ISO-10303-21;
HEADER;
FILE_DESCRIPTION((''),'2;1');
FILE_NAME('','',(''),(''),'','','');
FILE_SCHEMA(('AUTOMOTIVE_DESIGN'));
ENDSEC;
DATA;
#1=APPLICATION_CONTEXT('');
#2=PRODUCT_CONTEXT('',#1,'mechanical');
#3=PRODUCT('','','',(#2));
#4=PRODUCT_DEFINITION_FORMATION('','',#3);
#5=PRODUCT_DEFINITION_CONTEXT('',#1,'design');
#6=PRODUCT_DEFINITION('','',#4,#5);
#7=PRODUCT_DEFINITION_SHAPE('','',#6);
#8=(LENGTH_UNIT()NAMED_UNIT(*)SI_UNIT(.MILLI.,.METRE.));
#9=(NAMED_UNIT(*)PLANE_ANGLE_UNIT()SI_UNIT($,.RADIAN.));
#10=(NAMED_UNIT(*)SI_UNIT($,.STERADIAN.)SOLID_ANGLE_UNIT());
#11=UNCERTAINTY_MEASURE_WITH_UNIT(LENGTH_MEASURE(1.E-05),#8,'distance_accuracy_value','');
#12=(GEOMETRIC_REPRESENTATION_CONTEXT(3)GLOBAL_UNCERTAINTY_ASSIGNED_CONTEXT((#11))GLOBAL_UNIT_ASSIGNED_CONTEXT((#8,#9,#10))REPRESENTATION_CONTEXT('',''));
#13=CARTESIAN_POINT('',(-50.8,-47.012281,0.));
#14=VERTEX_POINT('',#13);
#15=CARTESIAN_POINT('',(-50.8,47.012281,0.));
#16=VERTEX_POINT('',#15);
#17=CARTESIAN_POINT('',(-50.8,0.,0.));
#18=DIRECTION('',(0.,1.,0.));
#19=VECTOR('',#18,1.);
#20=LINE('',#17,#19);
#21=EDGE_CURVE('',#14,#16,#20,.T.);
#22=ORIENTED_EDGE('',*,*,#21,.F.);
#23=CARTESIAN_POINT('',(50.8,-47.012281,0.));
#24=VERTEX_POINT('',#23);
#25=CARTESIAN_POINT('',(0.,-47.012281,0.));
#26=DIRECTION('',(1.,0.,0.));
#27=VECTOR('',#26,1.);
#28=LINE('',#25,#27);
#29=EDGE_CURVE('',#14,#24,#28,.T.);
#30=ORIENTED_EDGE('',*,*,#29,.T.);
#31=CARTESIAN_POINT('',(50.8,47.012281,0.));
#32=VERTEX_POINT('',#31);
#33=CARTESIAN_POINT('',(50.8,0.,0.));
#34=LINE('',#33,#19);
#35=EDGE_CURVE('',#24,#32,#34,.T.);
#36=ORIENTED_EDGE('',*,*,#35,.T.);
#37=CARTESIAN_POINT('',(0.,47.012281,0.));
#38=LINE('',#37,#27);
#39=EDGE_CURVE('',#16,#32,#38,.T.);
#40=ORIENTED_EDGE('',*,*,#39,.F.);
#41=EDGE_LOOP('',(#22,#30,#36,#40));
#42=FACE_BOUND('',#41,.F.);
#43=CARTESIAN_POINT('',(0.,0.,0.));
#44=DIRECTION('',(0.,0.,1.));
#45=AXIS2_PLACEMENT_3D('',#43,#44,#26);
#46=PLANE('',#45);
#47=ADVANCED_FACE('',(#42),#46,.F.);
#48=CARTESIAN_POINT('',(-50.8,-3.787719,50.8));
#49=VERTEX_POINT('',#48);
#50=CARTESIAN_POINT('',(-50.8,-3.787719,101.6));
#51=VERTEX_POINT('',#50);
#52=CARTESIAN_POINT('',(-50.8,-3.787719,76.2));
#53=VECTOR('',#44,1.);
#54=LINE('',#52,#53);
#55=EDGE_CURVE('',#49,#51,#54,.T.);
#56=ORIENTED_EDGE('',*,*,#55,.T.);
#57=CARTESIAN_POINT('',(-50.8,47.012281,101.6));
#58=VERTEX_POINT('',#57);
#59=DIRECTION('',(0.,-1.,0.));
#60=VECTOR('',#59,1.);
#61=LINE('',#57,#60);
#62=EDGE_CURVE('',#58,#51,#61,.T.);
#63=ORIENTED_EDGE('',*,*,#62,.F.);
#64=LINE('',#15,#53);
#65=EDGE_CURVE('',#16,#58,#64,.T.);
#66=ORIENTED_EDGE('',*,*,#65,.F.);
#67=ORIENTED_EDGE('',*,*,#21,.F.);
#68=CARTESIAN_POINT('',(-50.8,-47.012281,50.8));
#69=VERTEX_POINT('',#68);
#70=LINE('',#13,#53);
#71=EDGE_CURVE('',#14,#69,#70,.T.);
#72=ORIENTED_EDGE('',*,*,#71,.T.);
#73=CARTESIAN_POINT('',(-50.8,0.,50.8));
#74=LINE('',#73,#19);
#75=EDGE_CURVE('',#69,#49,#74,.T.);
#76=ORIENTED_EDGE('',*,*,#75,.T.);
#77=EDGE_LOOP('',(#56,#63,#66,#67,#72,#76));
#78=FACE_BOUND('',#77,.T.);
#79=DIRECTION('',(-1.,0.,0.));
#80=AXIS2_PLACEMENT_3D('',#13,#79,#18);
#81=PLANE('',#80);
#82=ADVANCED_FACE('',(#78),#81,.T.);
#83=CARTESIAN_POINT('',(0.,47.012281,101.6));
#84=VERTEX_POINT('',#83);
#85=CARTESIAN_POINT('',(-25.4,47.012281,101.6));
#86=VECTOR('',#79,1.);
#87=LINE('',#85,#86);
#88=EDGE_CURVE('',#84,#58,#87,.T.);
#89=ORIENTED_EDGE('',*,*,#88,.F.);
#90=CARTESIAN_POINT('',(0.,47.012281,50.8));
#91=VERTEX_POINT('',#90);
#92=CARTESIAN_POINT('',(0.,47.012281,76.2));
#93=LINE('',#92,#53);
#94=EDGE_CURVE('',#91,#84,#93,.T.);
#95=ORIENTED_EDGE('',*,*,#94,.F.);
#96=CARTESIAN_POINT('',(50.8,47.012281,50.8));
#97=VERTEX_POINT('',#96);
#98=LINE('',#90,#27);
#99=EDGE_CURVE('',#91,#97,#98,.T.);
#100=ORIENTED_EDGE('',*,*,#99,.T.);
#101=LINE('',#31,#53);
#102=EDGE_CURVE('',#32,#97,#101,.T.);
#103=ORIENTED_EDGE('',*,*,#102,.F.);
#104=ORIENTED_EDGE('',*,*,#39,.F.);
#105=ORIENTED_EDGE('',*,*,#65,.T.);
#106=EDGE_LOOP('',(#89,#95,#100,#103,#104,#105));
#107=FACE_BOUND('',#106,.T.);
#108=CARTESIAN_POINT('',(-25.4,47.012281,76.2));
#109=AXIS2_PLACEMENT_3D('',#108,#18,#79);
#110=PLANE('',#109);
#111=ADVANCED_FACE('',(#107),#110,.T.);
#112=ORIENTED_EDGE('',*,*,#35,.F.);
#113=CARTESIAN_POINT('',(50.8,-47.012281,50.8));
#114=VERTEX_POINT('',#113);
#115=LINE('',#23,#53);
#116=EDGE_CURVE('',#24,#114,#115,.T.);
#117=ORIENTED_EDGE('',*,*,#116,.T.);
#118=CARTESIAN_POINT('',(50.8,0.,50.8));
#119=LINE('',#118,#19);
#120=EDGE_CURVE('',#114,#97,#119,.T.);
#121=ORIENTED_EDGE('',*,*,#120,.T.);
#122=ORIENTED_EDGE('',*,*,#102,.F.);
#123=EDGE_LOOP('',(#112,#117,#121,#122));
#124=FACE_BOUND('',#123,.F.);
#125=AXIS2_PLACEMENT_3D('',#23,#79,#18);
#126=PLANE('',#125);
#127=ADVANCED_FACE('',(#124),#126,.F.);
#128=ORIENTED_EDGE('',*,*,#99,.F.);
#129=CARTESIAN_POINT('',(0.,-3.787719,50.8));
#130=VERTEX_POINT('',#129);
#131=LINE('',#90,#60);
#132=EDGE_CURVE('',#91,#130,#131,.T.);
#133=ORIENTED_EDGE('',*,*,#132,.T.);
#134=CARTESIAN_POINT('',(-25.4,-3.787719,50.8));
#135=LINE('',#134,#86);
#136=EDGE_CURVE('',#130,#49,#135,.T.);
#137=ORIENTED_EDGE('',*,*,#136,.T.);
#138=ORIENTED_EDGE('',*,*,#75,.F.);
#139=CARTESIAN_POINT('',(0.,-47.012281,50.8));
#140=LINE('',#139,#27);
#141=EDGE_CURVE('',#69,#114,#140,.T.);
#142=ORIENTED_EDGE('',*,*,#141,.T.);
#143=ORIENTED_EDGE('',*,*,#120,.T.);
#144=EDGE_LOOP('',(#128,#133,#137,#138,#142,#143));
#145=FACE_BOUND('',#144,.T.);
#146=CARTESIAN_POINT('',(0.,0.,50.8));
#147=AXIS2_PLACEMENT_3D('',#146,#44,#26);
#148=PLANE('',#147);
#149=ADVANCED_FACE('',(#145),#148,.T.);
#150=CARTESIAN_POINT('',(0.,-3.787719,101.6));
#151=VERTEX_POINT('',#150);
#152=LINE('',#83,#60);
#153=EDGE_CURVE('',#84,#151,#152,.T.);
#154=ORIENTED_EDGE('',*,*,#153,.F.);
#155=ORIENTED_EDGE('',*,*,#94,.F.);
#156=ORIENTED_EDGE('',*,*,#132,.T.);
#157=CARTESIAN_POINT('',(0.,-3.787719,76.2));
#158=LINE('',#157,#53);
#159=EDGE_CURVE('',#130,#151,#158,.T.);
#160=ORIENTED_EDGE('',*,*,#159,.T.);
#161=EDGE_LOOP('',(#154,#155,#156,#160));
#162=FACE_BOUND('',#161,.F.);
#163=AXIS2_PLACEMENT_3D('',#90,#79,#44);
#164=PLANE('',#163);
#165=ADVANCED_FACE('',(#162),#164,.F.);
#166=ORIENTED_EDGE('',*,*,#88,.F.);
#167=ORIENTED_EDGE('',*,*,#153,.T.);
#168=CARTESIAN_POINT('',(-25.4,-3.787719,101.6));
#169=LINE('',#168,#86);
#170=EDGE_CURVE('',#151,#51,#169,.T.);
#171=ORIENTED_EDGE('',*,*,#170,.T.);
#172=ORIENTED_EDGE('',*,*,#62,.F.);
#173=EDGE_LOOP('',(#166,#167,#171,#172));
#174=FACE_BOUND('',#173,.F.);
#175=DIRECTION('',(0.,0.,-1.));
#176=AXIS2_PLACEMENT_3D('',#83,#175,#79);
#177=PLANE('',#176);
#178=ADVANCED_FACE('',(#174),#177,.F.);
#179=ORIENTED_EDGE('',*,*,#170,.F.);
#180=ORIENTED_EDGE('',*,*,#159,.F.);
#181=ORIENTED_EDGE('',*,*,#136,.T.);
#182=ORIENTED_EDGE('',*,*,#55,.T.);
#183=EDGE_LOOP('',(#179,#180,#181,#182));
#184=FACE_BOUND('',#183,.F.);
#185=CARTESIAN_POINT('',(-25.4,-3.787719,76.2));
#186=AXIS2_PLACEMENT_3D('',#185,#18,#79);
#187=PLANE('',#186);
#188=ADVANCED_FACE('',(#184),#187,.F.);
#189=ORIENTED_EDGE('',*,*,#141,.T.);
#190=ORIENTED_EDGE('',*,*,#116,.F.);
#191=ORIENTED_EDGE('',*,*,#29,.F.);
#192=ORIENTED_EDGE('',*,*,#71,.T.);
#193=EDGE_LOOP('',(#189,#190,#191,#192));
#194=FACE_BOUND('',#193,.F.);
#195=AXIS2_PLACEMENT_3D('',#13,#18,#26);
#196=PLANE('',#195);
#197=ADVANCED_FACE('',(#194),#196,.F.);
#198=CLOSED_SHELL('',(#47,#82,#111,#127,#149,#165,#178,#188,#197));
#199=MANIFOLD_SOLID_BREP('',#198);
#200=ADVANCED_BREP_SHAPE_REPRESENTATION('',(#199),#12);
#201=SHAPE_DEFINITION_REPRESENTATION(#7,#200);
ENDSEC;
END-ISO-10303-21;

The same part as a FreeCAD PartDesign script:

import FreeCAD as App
import Part
import Sketcher
from FreeCAD import Vector
Q = App.Units.Quantity

doc = App.newDocument("Part")
body = doc.addObject("PartDesign::Body", "Body")

# Sketch on XY plane
sketch1 = body.newObject("Sketcher::SketchObject", "Sketch")
sketch1.AttachmentSupport = (doc.getObject("XY_Plane"), [""])
sketch1.MapMode = "FlatFace"
sketch1.addGeometry([
    Part.LineSegment(Vector(-50.8, 47.012281, 0), Vector(-50.8, -47.012281, 0)),
    Part.LineSegment(Vector(-50.8, -47.012281, 0), Vector(50.8, -47.012281, 0)),
    Part.LineSegment(Vector(50.8, -47.012281, 0), Vector(50.8, 47.012281, 0)),
    Part.LineSegment(Vector(50.8, 47.012281, 0), Vector(-50.8, 47.012281, 0)),
], False)
sketch1.addConstraint([
    Sketcher.Constraint("Coincident", 0, 2, 1, 1),
    Sketcher.Constraint("Coincident", 1, 2, 2, 1),
    Sketcher.Constraint("Coincident", 2, 2, 3, 1),
    Sketcher.Constraint("Coincident", 3, 2, 0, 1),
    Sketcher.Constraint("Vertical", 0),
    Sketcher.Constraint("Horizontal", 1),
    Sketcher.Constraint("Vertical", 2),
    Sketcher.Constraint("Horizontal", 3),
    Sketcher.Constraint("Symmetric", 0, 2, 2, 2, -1, 1),
    Sketcher.Constraint("DistanceX", 1, 1, 1, 2, Q("4 in")),
    Sketcher.Constraint("DistanceY", 0, 2, 0, 1, Q("94.024562 mm")),
])
pad1 = body.newObject("PartDesign::Pad", "Pad")
pad1.Profile = sketch1
pad1.Length = Q("2 in")

# Sketch on XZ plane
sketch2 = body.newObject("Sketcher::SketchObject", "Sketch001")
sketch2.AttachmentSupport = (doc.getObject("XZ_Plane"), [""])
sketch2.MapMode = "FlatFace"
sketch2.AttachmentOffset = App.Placement(Vector(0, 0, -47.012281), App.Rotation())
sketch2.addGeometry([
    Part.LineSegment(Vector(0, 101.6, 0), Vector(0, 50.8, 0)),
    Part.LineSegment(Vector(0, 50.8, 0), Vector(-50.8, 50.8, 0)),
    Part.LineSegment(Vector(-50.8, 50.8, 0), Vector(-50.8, 101.6, 0)),
    Part.LineSegment(Vector(-50.8, 101.6, 0), Vector(0, 101.6, 0)),
], False)
sketch2.addConstraint([
    Sketcher.Constraint("Coincident", 0, 2, 1, 1),
    Sketcher.Constraint("Coincident", 1, 2, 2, 1),
    Sketcher.Constraint("Coincident", 2, 2, 3, 1),
    Sketcher.Constraint("Coincident", 3, 2, 0, 1),
    Sketcher.Constraint("Vertical", 0),
    Sketcher.Constraint("Horizontal", 1),
    Sketcher.Constraint("Vertical", 2),
    Sketcher.Constraint("Horizontal", 3),
    Sketcher.Constraint("PointOnObject", 0, 2, -2),
    Sketcher.Constraint("Equal", 3, 0),
    Sketcher.Constraint("DistanceX", 1, 2, 1, 1, Q("2 in")),
    Sketcher.Constraint("DistanceY", -1, 1, 0, 2, Q("2 in")),
])
pad2 = body.newObject("PartDesign::Pad", "Pad001")
pad2.Profile = sketch2
pad2.Length = Q("2 in")

doc.recompute()
